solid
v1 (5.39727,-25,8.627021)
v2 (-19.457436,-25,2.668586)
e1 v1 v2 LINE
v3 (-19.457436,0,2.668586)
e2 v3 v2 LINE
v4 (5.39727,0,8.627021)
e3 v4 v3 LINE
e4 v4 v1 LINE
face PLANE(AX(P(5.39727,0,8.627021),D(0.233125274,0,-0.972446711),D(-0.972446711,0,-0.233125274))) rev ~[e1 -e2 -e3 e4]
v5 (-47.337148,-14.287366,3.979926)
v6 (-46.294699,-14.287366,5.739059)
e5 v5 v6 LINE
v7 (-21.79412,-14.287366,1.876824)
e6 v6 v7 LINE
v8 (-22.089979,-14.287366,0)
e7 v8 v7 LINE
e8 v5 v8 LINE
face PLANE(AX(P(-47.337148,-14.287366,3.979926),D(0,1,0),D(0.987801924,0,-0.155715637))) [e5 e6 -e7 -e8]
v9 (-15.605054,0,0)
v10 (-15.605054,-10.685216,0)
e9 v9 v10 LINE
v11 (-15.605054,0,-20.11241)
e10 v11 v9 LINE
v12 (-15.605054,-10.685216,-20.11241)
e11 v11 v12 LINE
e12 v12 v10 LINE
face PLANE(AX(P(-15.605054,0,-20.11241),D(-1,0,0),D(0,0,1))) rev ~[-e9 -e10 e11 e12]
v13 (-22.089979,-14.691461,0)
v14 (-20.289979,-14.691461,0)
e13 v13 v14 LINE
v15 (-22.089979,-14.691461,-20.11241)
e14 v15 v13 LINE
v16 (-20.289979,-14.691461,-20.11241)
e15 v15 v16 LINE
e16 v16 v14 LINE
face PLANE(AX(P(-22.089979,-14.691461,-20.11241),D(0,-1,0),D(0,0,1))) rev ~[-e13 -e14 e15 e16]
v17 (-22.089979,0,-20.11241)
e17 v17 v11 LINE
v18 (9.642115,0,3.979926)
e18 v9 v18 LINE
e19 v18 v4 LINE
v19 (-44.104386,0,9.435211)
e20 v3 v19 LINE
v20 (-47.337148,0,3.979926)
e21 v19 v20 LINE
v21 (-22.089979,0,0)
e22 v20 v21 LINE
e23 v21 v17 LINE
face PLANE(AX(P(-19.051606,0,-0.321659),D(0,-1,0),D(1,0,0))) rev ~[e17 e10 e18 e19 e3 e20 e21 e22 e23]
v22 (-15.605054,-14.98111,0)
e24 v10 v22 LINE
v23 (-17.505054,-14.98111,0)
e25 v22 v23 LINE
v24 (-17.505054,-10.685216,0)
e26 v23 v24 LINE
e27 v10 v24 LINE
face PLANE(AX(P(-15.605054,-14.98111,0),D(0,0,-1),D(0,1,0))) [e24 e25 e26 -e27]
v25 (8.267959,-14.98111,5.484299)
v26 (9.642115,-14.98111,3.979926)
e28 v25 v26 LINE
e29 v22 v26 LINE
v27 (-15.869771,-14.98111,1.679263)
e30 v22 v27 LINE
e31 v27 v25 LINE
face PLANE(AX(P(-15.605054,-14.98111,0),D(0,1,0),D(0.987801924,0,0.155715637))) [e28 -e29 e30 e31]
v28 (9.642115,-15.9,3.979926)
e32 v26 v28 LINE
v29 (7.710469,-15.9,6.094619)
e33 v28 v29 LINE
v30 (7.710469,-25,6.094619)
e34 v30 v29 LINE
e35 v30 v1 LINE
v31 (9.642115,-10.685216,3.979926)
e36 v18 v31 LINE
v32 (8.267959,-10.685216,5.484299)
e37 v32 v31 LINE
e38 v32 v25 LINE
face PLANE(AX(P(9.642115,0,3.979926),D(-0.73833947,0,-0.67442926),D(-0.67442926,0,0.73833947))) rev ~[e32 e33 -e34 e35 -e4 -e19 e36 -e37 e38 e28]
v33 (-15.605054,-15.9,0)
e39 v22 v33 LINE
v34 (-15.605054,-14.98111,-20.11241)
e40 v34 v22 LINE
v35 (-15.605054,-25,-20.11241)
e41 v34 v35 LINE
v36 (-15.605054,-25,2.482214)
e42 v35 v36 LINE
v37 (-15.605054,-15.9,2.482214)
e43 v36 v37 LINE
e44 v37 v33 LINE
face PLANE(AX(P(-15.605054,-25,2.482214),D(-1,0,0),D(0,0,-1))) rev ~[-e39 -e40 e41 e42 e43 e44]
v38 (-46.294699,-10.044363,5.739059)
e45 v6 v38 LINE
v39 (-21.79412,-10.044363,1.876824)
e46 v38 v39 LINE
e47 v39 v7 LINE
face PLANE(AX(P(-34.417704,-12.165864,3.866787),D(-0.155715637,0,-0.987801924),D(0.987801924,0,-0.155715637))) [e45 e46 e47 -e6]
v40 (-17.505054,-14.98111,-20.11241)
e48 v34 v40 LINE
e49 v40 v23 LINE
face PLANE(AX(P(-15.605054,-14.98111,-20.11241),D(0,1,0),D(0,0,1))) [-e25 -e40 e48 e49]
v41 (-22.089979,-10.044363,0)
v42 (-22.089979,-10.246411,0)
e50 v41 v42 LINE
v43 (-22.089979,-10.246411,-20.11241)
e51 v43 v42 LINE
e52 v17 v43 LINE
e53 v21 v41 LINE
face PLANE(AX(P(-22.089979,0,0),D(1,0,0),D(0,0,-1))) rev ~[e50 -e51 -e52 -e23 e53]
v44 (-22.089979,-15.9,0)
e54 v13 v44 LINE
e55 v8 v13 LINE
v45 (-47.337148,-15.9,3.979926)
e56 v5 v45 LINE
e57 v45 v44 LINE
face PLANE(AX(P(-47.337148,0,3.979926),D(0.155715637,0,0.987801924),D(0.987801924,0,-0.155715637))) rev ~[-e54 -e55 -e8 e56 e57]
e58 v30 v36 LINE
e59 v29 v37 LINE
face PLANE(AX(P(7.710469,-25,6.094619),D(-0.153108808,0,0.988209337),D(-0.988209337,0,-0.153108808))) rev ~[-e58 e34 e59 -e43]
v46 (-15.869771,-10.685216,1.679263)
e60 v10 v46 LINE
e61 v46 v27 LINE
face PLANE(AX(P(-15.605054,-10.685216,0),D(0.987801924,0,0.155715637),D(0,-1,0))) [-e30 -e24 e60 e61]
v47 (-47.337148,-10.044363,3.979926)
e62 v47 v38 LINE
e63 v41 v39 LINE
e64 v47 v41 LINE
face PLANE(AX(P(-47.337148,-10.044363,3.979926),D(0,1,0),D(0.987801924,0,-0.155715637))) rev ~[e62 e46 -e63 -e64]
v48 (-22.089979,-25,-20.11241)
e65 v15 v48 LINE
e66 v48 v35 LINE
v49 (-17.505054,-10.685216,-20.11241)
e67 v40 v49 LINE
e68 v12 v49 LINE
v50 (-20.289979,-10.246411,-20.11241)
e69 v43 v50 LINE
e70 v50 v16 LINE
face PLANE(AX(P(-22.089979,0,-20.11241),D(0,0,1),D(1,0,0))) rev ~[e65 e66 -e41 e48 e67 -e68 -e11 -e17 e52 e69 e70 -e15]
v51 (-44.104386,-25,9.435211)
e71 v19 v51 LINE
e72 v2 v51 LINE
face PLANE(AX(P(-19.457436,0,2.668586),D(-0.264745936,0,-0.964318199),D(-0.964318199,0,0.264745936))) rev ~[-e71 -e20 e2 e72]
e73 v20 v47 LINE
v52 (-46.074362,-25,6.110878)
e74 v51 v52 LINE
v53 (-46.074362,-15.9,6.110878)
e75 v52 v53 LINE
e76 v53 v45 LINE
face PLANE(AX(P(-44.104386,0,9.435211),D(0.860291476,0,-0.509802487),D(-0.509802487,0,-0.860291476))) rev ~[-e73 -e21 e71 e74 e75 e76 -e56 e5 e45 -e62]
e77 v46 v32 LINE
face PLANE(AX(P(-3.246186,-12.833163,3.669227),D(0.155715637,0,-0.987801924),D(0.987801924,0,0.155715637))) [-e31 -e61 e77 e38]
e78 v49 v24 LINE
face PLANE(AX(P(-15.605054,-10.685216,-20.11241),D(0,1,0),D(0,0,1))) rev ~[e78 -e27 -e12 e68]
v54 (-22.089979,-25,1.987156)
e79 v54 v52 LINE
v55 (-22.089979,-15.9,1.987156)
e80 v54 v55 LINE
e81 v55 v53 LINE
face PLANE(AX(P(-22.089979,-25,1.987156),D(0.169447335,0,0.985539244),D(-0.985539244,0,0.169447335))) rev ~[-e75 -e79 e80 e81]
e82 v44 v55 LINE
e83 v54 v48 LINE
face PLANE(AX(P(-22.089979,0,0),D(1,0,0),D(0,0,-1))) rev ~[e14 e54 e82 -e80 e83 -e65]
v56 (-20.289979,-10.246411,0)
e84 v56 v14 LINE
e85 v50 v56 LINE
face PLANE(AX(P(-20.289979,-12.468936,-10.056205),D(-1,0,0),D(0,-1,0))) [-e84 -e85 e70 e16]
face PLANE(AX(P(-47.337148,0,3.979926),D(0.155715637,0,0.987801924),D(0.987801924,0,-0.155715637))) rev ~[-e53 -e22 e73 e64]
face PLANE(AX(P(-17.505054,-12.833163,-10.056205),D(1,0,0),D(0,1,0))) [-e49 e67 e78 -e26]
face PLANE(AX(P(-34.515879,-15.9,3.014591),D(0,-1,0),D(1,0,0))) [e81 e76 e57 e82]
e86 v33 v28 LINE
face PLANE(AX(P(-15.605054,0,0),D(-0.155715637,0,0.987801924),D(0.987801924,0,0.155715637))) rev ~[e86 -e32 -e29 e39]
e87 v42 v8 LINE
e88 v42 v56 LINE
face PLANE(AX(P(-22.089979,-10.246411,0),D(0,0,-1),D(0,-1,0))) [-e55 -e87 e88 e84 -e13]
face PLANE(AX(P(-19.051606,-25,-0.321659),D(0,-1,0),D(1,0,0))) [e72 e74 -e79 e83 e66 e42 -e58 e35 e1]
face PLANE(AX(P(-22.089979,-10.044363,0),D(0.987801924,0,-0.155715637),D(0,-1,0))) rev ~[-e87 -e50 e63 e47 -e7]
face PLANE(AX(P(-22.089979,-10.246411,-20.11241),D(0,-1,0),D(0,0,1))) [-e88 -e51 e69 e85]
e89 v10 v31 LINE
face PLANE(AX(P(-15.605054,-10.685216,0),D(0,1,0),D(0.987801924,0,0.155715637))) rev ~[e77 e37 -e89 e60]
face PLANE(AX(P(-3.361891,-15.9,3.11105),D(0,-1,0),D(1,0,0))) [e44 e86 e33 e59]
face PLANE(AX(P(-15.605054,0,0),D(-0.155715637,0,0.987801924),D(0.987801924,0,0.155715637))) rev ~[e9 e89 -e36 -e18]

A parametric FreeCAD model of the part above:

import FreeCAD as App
import Part
import Sketcher
from FreeCAD import Vector
Q = App.Units.Quantity


def add_polygon(sketch, points):
    """Adds a closed chain of lines whose ends are joined by coincident constraints."""
    first, n = sketch.GeometryCount, len(points)
    for a, b in zip(points, points[1:] + points[:1]):
        sketch.addGeometry(Part.LineSegment(App.Vector(*a, 0), App.Vector(*b, 0)), False)
    for i in range(n):
        sketch.addConstraint(Sketcher.Constraint("Coincident", first + i, 2, first + (i + 1) % n, 1))

doc = App.newDocument("Part")
body = doc.addObject("PartDesign::Body", "Body")

sketch1 = body.newObject("Sketcher::SketchObject", "Sketch")
sketch1.AttachmentSupport = (doc.getObject("XZ_Plane"), [""])
sketch1.MapMode = "FlatFace"
add_polygon(sketch1, [(-19, 3), (-44, 9), (-47, 4), (-22, 0), (-22, -20), (-16, -20), (-16, 0), (10, 4), (5, 9)])
sketch1.addConstraint(Sketcher.Constraint("Vertical", 3))
sketch1.addConstraint(Sketcher.Constraint("Horizontal", 4))
sketch1.addConstraint(Sketcher.Constraint("Vertical", 5))
sketch1.addConstraint(Sketcher.Constraint("PointOnObject", 2, 2, -1))
sketch1.addConstraint(Sketcher.Constraint("PointOnObject", 5, 2, -1))
sketch1.addConstraint(Sketcher.Constraint("Horizontal", 1, 2, 6, 2))
sketch1.addConstraint(Sketcher.Constraint("Equal", 0, 2))
sketch1.addConstraint(Sketcher.Constraint("Equal", 2, 6))
sketch1.addConstraint(Sketcher.Constraint("Equal", 6, 8))
sketch1.addConstraint(Sketcher.Constraint("DistanceY", 3, 2, 3, 1, Q("20.11241 mm")))
sketch1.addConstraint(Sketcher.Constraint("DistanceX", 0, 2, 6, 2, Q("53.746501 mm")))
sketch1.addConstraint(Sketcher.Constraint("Distance", 0, Q("25.558939 mm")))
sketch1.addConstraint(Sketcher.Constraint("Distance", 7, Q("6.293981 mm")))
sketch1.addConstraint(Sketcher.Constraint("DistanceX", 4, 1, 4, 2, Q("6.484925 mm")))
sketch1.addConstraint(Sketcher.Constraint("DistanceY", -1, 1, 0, 2, Q("9.435211 mm")))
sketch1.addConstraint(Sketcher.Constraint("DistanceX", 1, 2, -1, 1, Q("47.337148 mm")))
sketch1.addConstraint(Sketcher.Constraint("DistanceX", 2, 2, -1, 1, Q("22.089979 mm")))
sketch1.addConstraint(Sketcher.Constraint("DistanceX", -1, 1, 7, 2, Q("5.39727 mm")))
pad1 = body.newObject("PartDesign::Pad", "Pad")
pad1.Profile = sketch1
pad1.Length = 25

sketch2 = body.newObject("Sketcher::SketchObject", "Sketch001")
sketch2.Placement = App.Placement(Vector(-0.378381, 0, 2.40031), App.Rotation(Vector(0.987801924, 0, 0.155715637), Vector(0, -1.000000001, 0), Vector(0.155715637, 0, -0.987801924), "ZXY"))
add_polygon(sketch2, [(-15.4, 15), (-15.4, 10.7), (10.1, 10.7), (10.1, 15)])
sketch2.addConstraint(Sketcher.Constraint("Vertical", 0))
sketch2.addConstraint(Sketcher.Constraint("Horizontal", 1))
sketch2.addConstraint(Sketcher.Constraint("Vertical", 2))
sketch2.addConstraint(Sketcher.Constraint("Horizontal", 3))
sketch2.addConstraint(Sketcher.Constraint("DistanceX", 1, 1, 1, 2, Q("25.558939 mm")))
sketch2.addConstraint(Sketcher.Constraint("DistanceY", 0, 2, 0, 1, Q("4.295894 mm")))
sketch2.addConstraint(Sketcher.Constraint("DistanceY", -1, 1, 2, 2, Q("14.98111 mm")))
sketch2.addConstraint(Sketcher.Constraint("DistanceX", 0, 2, -1, 1, Q("15.414703 mm")))
pocket1 = body.newObject("PartDesign::Pocket", "Pocket")
pocket1.Profile = sketch2
pocket1.Length = 1.7

sketch3 = body.newObject("Sketcher::SketchObject", "Sketch002")
sketch3.AttachmentSupport = (doc.getObject("YZ_Plane"), [""])
sketch3.MapMode = "FlatFace"
sketch3.AttachmentOffset = App.Placement(Vector(0, 0, -15.605054), App.Rotation())
add_polygon(sketch3, [(-15, 0), (-15, -20.1), (-10.7, -20.1), (-10.7, 0)])
sketch3.addConstraint(Sketcher.Constraint("Vertical", 0))
sketch3.addConstraint(Sketcher.Constraint("Horizontal", 1))
sketch3.addConstraint(Sketcher.Constraint("Vertical", 2))
sketch3.addConstraint(Sketcher.Constraint("Horizontal", 3))
sketch3.addConstraint(Sketcher.Constraint("PointOnObject", 2, 2, -1))
sketch3.addConstraint(Sketcher.Constraint("DistanceY", 0, 2, 0, 1, Q("20.11241 mm")))
sketch3.addConstraint(Sketcher.Constraint("DistanceX", 1, 1, 1, 2, Q("4.295894 mm")))
sketch3.addConstraint(Sketcher.Constraint("DistanceX", 0, 2, -1, 1, Q("14.98111 mm")))
pocket2 = body.newObject("PartDesign::Pocket", "Pocket001")
pocket2.Profile = sketch3
pocket2.Length = 1.9

sketch4 = body.newObject("Sketcher::SketchObject", "Sketch003")
sketch4.AttachmentSupport = (doc.getObject("YZ_Plane"), [""])
sketch4.MapMode = "FlatFace"
sketch4.AttachmentOffset = App.Placement(Vector(0, 0, -22.089979), App.Rotation())
add_polygon(sketch4, [(-10.2, 0), (-10.2, -20.1), (-14.7, -20.1), (-14.7, 0)])
sketch4.addConstraint(Sketcher.Constraint("Vertical", 0))
sketch4.addConstraint(Sketcher.Constraint("Horizontal", 1))
sketch4.addConstraint(Sketcher.Constraint("Vertical", 2))
sketch4.addConstraint(Sketcher.Constraint("Horizontal", 3))
sketch4.addConstraint(Sketcher.Constraint("PointOnObject", 2, 2, -1))
sketch4.addConstraint(Sketcher.Constraint("DistanceX", 1, 2, 1, 1, Q("4.44505 mm")))
sketch4.addConstraint(Sketcher.Constraint("DistanceY", 0, 2, 0, 1, Q("20.11241 mm")))
sketch4.addConstraint(Sketcher.Constraint("DistanceX", 0, 2, -1, 1, Q("10.246411 mm")))
pocket3 = body.newObject("PartDesign::Pocket", "Pocket002")
pocket3.Profile = sketch4
pocket3.Length = 1.8
pocket3.Reversed = True

sketch5 = body.newObject("Sketcher::SketchObject", "Sketch004")
sketch5.Placement = App.Placement(Vector(-0.535624, 0, -3.397797), App.Rotation(Vector(0.987801924, 0, -0.155715637), Vector(0, -1.000000001, 0), Vector(-0.155715637, 0, -0.987801924), "ZXY"))
add_polygon(sketch5, [(-47.4, 14.3), (-47.4, 10), (-21.8, 10), (-21.8, 14.3)])
sketch5.addConstraint(Sketcher.Constraint("Vertical", 0))
sketch5.addConstraint(Sketcher.Constraint("Horizontal", 1))
sketch5.addConstraint(Sketcher.Constraint("Vertical", 2))
sketch5.addConstraint(Sketcher.Constraint("Horizontal", 3))
sketch5.addConstraint(Sketcher.Constraint("DistanceX", 1, 1, 1, 2, Q("25.558939 mm")))
sketch5.addConstraint(Sketcher.Constraint("DistanceY", 0, 2, 0, 1, Q("4.243002 mm")))
sketch5.addConstraint(Sketcher.Constraint("DistanceX", 0, 2, -1, 1, Q("47.379463 mm")))
sketch5.addConstraint(Sketcher.Constraint("DistanceY", -1, 1, 0, 2, Q("10.044363 mm")))
pocket4 = body.newObject("PartDesign::Pocket", "Pocket003")
pocket4.Profile = sketch5
pocket4.Length = 1.9

sketch6 = body.newObject("Sketcher::SketchObject", "Sketch005")
sketch6.AttachmentSupport = (doc.getObject("XZ_Plane"), [""])
sketch6.MapMode = "FlatFace"
sketch6.AttachmentOffset = App.Placement(Vector(0, 0, 25), App.Rotation())
add_polygon(sketch6, [(-22.1, 2), (-46.1, 6.1), (-47.3, 4), (-22.1, 0)])
add_polygon(sketch6, [(9.6, 4), (7.7, 6.1), (-15.6, 2.5), (-15.6, 0)])
sketch6.addConstraint(Sketcher.Constraint("Vertical", 3))
sketch6.addConstraint(Sketcher.Constraint("Vertical", 6))
sketch6.addConstraint(Sketcher.Constraint("PointOnObject", 2, 2, -1))
sketch6.addConstraint(Sketcher.Constraint("PointOnObject", 6, 2, -1))
sketch6.addConstraint(Sketcher.Constraint("Horizontal", 1, 2, 7, 2))
sketch6.addConstraint(Sketcher.Constraint("Equal", 2, 7))
sketch6.addConstraint(Sketcher.Constraint("Distance", 1, Q("2.477011 mm")))
sketch6.addConstraint(Sketcher.Constraint("Distance", 2, Q("25.558939 mm")))
sketch6.addConstraint(Sketcher.Constraint("Distance", 4, Q("2.864119 mm")))
sketch6.addConstraint(Sketcher.Constraint("Distance", 5, Q("23.593709 mm")))
sketch6.addConstraint(Sketcher.Constraint("DistanceY", 3, 1, 3, 2, Q("1.987156 mm")))
sketch6.addConstraint(Sketcher.Constraint("DistanceY", 6, 2, 6, 1, Q("2.482214 mm")))
sketch6.addConstraint(Sketcher.Constraint("DistanceX", 0, 2, -1, 1, Q("46.074362 mm")))
sketch6.addConstraint(Sketcher.Constraint("DistanceY", -1, 1, 0, 2, Q("6.110878 mm")))
sketch6.addConstraint(Sketcher.Constraint("DistanceX", 1, 2, -1, 1, Q("47.337148 mm")))
sketch6.addConstraint(Sketcher.Constraint("DistanceX", -1, 1, 4, 2, Q("7.710469 mm")))
pocket5 = body.newObject("PartDesign::Pocket", "Pocket004")
pocket5.Profile = sketch6
pocket5.Length = 9.1

doc.recompute()
